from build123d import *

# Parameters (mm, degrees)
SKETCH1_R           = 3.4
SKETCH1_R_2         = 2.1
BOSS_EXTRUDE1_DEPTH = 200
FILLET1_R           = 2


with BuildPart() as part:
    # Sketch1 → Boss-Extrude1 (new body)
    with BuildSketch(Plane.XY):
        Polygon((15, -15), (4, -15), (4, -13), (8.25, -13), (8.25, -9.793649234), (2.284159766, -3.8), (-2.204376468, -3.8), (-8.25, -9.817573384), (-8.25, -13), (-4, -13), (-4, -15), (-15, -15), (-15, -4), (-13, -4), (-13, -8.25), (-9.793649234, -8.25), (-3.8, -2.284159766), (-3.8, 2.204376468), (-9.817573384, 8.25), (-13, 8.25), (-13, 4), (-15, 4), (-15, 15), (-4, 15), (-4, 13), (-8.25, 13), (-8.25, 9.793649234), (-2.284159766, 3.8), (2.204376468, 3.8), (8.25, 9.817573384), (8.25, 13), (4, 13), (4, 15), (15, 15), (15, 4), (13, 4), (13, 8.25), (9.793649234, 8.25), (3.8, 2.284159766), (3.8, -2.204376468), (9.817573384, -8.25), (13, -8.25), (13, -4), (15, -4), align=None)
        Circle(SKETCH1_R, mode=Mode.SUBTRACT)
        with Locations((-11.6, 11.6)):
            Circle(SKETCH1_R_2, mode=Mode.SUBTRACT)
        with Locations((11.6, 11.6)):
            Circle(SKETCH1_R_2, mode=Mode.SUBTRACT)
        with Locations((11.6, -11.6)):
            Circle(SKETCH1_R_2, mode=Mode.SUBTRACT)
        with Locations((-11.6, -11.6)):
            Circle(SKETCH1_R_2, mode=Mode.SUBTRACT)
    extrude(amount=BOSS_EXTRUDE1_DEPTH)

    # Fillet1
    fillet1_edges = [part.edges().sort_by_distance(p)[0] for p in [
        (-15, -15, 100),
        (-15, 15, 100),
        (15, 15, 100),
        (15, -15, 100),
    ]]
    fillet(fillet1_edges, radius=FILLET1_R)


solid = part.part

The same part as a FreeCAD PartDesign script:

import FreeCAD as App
import Part
import Sketcher


def edges_at(feature, points):
    """Names of the edges that pass closest to the given points."""
    edges = feature.Shape.Edges
    near = lambda p: min(range(len(edges)), key=lambda i: edges[i].distToShape(Part.Vertex(*p))[0])
    return sorted({f"Edge{near(p) + 1}" for p in points})


def add_polygon(sketch, points):
    """Adds a closed chain of lines whose ends are joined by coincident constraints."""
    first, n = sketch.GeometryCount, len(points)
    for a, b in zip(points, points[1:] + points[:1]):
        sketch.addGeometry(Part.LineSegment(App.Vector(*a, 0), App.Vector(*b, 0)), False)
    for i in range(n):
        sketch.addConstraint(Sketcher.Constraint("Coincident", first + i, 2, first + (i + 1) % n, 1))

doc = App.newDocument("Part")
body = doc.addObject("PartDesign::Body", "Body")

# Sketch on XY plane
sketch1 = body.newObject("Sketcher::SketchObject", "Sketch")
sketch1.AttachmentSupport = (doc.getObject("XY_Plane"), [""])
sketch1.MapMode = "FlatFace"
add_polygon(sketch1, [(4, -15), (15, -15), (15, -4), (13, -4), (13, -8.25), (9.817573, -8.25), (3.8, -2.204376), (3.8, 2.28416), (9.793649, 8.25), (13, 8.25), (13, 4), (15, 4), (15, 15), (4, 15), (4, 13), (8.25, 13), (8.25, 9.817573), (2.204376, 3.8), (-2.28416, 3.8), (-8.25, 9.793649), (-8.25, 13), (-4, 13), (-4, 15), (-15, 15), (-15, 4), (-13, 4), (-13, 8.25), (-9.817573, 8.25), (-3.8, 2.204376), (-3.8, -2.28416), (-9.793649, -8.25), (-13, -8.25), (-13, -4), (-15, -4), (-15, -15), (-4, -15), (-4, -13), (-8.25, -13), (-8.25, -9.817573), (-2.204376, -3.8), (2.28416, -3.8), (8.25, -9.793649), (8.25, -13), (4, -13)])  # lines 0-43
sketch1.addGeometry(Part.Circle(App.Vector(11.6, -11.6, 0), App.Vector(0, 0, 1), 2.1), False)  # 44
sketch1.addGeometry(Part.Circle(App.Vector(-11.6, -11.6, 0), App.Vector(0, 0, 1), 2.1), False)  # 45
sketch1.addGeometry(Part.Circle(App.Vector(11.6, 11.6, 0), App.Vector(0, 0, 1), 2.1), False)  # 46
sketch1.addGeometry(Part.Circle(App.Vector(0, 0, 0), App.Vector(0, 0, 1), 3.4), False)  # 47
sketch1.addGeometry(Part.Circle(App.Vector(-11.6, 11.6, 0), App.Vector(0, 0, 1), 2.1), False)  # 48
sketch1.addConstraint([
    Sketcher.Constraint("Horizontal", 0),
    Sketcher.Constraint("Vertical", 1),
    Sketcher.Constraint("Horizontal", 2),
    Sketcher.Constraint("Vertical", 3),
    Sketcher.Constraint("Horizontal", 4),
    Sketcher.Constraint("Vertical", 6),
    Sketcher.Constraint("Horizontal", 8),
    Sketcher.Constraint("Vertical", 9),
    Sketcher.Constraint("Horizontal", 10),
    Sketcher.Constraint("Vertical", 11),
    Sketcher.Constraint("Horizontal", 12),
    Sketcher.Constraint("Vertical", 13),
    Sketcher.Constraint("Horizontal", 14),
    Sketcher.Constraint("Vertical", 15),
    Sketcher.Constraint("Horizontal", 17),
    Sketcher.Constraint("Vertical", 19),
    Sketcher.Constraint("Horizontal", 20),
    Sketcher.Constraint("Vertical", 21),
    Sketcher.Constraint("Horizontal", 22),
    Sketcher.Constraint("Vertical", 23),
    Sketcher.Constraint("Horizontal", 24),
    Sketcher.Constraint("Vertical", 25),
    Sketcher.Constraint("Horizontal", 26),
    Sketcher.Constraint("Vertical", 28),
    Sketcher.Constraint("Horizontal", 30),
    Sketcher.Constraint("Vertical", 31),
    Sketcher.Constraint("Horizontal", 32),
    Sketcher.Constraint("Vertical", 33),
    Sketcher.Constraint("Horizontal", 34),
    Sketcher.Constraint("Vertical", 35),
    Sketcher.Constraint("Horizontal", 36),
    Sketcher.Constraint("Vertical", 37),
    Sketcher.Constraint("Horizontal", 39),
    Sketcher.Constraint("Vertical", 41),
    Sketcher.Constraint("Horizontal", 42),
    Sketcher.Constraint("Vertical", 43),
    Sketcher.Constraint("Coincident", 47, 3, -1, 1),
    Sketcher.Constraint("Equal", 44, 45),
    Sketcher.Constraint("Equal", 45, 46),
    Sketcher.Constraint("Equal", 46, 48),
    Sketcher.Constraint("Symmetric", 45, 3, 46, 3, -1, 1),
    Sketcher.Constraint("Symmetric", 44, 3, 48, 3, -1, 1),
    Sketcher.Constraint("Symmetric", 0, 2, 22, 2, -1, 1),
    Sketcher.Constraint("Symmetric", 2, 2, 24, 2, -1, 1),
    Sketcher.Constraint("Symmetric", 4, 2, 26, 2, -1, 1),
    Sketcher.Constraint("Symmetric", 5, 2, 27, 2, -1, 1),
    Sketcher.Constraint("Symmetric", 7, 2, 29, 2, -1, 1),
    Sketcher.Constraint("Symmetric", 9, 2, 31, 2, -1, 1),
    Sketcher.Constraint("Symmetric", 11, 2, 33, 2, -1, 1),
    Sketcher.Constraint("Symmetric", 13, 2, 35, 2, -1, 1),
    Sketcher.Constraint("Symmetric", 15, 2, 37, 2, -1, 1),
    Sketcher.Constraint("Symmetric", 16, 2, 38, 2, -1, 1),
    Sketcher.Constraint("Symmetric", 18, 2, 40, 2, -1, 1),
    Sketcher.Constraint("Symmetric", 20, 2, 42, 2, -1, 1),
    Sketcher.Constraint("Symmetric", 44, 3, 45, 3, -2),
    Sketcher.Constraint("Symmetric", 14, 2, 19, 2, -2),
    Sketcher.Constraint("Symmetric", 12, 2, 21, 2, -2),
    Sketcher.Constraint("Symmetric", 10, 2, 23, 2, -2),
    Sketcher.Constraint("Symmetric", 8, 2, 25, 2, -2),
    Sketcher.Constraint("Perpendicular", 5, 7),
    Sketcher.Constraint("Parallel", 7, 16),
    Sketcher.Constraint("Perpendicular", 16, 18),
    Sketcher.Constraint("Perpendicular", 27, 29),
    Sketcher.Constraint("Perpendicular", 38, 40),
    Sketcher.Constraint("Equal", 34, 1),
    Sketcher.Constraint("Equal", 42, 3),
    Sketcher.Constraint("Equal", 39, 6),
    Sketcher.Constraint("Equal", 32, 13),
    Sketcher.Constraint("Equal", 26, 15),
    Sketcher.Constraint("Equal", 30, 19),
    Sketcher.Constraint("Equal", 5, 16),
    Sketcher.Constraint("Diameter", 44, 4.2),
    Sketcher.Constraint("Diameter", 47, 6.8),
    Sketcher.Constraint("DistanceX", 0, 1, 0, 2, 11.0),
    Sketcher.Constraint("DistanceX", 2, 2, 2, 1, 2.0),
    Sketcher.Constraint("DistanceX", -1, 1, 0, 2, 15.0),
    Sketcher.Constraint("DistanceX", 14, 1, 14, 2, 4.25),
    Sketcher.Constraint("DistanceX", -1, 1, 44, 3, 11.6),
    Sketcher.Constraint("DistanceY", 44, 3, -1, 1, 11.6),
    Sketcher.Constraint("DistanceX", -1, 1, 5, 2, 3.8),
    Sketcher.Constraint("DistanceX", 8, 1, 8, 2, 3.206351),
    Sketcher.Constraint("Distance", 5, 8.529991),
    Sketcher.Constraint("Distance", 7, 8.456659),
])
pad1 = body.newObject("PartDesign::Pad", "Pad")
pad1.Profile = sketch1
pad1.Length = 200
doc.recompute()

fillet = body.newObject("PartDesign::Fillet", "Fillet")
fillet.Base = (pad1, edges_at(pad1, [
    (-15, -15, 100),
    (-15, 15, 100),
    (15, 15, 100),
    (15, -15, 100),
]))
fillet.Radius = 2

doc.recompute()
